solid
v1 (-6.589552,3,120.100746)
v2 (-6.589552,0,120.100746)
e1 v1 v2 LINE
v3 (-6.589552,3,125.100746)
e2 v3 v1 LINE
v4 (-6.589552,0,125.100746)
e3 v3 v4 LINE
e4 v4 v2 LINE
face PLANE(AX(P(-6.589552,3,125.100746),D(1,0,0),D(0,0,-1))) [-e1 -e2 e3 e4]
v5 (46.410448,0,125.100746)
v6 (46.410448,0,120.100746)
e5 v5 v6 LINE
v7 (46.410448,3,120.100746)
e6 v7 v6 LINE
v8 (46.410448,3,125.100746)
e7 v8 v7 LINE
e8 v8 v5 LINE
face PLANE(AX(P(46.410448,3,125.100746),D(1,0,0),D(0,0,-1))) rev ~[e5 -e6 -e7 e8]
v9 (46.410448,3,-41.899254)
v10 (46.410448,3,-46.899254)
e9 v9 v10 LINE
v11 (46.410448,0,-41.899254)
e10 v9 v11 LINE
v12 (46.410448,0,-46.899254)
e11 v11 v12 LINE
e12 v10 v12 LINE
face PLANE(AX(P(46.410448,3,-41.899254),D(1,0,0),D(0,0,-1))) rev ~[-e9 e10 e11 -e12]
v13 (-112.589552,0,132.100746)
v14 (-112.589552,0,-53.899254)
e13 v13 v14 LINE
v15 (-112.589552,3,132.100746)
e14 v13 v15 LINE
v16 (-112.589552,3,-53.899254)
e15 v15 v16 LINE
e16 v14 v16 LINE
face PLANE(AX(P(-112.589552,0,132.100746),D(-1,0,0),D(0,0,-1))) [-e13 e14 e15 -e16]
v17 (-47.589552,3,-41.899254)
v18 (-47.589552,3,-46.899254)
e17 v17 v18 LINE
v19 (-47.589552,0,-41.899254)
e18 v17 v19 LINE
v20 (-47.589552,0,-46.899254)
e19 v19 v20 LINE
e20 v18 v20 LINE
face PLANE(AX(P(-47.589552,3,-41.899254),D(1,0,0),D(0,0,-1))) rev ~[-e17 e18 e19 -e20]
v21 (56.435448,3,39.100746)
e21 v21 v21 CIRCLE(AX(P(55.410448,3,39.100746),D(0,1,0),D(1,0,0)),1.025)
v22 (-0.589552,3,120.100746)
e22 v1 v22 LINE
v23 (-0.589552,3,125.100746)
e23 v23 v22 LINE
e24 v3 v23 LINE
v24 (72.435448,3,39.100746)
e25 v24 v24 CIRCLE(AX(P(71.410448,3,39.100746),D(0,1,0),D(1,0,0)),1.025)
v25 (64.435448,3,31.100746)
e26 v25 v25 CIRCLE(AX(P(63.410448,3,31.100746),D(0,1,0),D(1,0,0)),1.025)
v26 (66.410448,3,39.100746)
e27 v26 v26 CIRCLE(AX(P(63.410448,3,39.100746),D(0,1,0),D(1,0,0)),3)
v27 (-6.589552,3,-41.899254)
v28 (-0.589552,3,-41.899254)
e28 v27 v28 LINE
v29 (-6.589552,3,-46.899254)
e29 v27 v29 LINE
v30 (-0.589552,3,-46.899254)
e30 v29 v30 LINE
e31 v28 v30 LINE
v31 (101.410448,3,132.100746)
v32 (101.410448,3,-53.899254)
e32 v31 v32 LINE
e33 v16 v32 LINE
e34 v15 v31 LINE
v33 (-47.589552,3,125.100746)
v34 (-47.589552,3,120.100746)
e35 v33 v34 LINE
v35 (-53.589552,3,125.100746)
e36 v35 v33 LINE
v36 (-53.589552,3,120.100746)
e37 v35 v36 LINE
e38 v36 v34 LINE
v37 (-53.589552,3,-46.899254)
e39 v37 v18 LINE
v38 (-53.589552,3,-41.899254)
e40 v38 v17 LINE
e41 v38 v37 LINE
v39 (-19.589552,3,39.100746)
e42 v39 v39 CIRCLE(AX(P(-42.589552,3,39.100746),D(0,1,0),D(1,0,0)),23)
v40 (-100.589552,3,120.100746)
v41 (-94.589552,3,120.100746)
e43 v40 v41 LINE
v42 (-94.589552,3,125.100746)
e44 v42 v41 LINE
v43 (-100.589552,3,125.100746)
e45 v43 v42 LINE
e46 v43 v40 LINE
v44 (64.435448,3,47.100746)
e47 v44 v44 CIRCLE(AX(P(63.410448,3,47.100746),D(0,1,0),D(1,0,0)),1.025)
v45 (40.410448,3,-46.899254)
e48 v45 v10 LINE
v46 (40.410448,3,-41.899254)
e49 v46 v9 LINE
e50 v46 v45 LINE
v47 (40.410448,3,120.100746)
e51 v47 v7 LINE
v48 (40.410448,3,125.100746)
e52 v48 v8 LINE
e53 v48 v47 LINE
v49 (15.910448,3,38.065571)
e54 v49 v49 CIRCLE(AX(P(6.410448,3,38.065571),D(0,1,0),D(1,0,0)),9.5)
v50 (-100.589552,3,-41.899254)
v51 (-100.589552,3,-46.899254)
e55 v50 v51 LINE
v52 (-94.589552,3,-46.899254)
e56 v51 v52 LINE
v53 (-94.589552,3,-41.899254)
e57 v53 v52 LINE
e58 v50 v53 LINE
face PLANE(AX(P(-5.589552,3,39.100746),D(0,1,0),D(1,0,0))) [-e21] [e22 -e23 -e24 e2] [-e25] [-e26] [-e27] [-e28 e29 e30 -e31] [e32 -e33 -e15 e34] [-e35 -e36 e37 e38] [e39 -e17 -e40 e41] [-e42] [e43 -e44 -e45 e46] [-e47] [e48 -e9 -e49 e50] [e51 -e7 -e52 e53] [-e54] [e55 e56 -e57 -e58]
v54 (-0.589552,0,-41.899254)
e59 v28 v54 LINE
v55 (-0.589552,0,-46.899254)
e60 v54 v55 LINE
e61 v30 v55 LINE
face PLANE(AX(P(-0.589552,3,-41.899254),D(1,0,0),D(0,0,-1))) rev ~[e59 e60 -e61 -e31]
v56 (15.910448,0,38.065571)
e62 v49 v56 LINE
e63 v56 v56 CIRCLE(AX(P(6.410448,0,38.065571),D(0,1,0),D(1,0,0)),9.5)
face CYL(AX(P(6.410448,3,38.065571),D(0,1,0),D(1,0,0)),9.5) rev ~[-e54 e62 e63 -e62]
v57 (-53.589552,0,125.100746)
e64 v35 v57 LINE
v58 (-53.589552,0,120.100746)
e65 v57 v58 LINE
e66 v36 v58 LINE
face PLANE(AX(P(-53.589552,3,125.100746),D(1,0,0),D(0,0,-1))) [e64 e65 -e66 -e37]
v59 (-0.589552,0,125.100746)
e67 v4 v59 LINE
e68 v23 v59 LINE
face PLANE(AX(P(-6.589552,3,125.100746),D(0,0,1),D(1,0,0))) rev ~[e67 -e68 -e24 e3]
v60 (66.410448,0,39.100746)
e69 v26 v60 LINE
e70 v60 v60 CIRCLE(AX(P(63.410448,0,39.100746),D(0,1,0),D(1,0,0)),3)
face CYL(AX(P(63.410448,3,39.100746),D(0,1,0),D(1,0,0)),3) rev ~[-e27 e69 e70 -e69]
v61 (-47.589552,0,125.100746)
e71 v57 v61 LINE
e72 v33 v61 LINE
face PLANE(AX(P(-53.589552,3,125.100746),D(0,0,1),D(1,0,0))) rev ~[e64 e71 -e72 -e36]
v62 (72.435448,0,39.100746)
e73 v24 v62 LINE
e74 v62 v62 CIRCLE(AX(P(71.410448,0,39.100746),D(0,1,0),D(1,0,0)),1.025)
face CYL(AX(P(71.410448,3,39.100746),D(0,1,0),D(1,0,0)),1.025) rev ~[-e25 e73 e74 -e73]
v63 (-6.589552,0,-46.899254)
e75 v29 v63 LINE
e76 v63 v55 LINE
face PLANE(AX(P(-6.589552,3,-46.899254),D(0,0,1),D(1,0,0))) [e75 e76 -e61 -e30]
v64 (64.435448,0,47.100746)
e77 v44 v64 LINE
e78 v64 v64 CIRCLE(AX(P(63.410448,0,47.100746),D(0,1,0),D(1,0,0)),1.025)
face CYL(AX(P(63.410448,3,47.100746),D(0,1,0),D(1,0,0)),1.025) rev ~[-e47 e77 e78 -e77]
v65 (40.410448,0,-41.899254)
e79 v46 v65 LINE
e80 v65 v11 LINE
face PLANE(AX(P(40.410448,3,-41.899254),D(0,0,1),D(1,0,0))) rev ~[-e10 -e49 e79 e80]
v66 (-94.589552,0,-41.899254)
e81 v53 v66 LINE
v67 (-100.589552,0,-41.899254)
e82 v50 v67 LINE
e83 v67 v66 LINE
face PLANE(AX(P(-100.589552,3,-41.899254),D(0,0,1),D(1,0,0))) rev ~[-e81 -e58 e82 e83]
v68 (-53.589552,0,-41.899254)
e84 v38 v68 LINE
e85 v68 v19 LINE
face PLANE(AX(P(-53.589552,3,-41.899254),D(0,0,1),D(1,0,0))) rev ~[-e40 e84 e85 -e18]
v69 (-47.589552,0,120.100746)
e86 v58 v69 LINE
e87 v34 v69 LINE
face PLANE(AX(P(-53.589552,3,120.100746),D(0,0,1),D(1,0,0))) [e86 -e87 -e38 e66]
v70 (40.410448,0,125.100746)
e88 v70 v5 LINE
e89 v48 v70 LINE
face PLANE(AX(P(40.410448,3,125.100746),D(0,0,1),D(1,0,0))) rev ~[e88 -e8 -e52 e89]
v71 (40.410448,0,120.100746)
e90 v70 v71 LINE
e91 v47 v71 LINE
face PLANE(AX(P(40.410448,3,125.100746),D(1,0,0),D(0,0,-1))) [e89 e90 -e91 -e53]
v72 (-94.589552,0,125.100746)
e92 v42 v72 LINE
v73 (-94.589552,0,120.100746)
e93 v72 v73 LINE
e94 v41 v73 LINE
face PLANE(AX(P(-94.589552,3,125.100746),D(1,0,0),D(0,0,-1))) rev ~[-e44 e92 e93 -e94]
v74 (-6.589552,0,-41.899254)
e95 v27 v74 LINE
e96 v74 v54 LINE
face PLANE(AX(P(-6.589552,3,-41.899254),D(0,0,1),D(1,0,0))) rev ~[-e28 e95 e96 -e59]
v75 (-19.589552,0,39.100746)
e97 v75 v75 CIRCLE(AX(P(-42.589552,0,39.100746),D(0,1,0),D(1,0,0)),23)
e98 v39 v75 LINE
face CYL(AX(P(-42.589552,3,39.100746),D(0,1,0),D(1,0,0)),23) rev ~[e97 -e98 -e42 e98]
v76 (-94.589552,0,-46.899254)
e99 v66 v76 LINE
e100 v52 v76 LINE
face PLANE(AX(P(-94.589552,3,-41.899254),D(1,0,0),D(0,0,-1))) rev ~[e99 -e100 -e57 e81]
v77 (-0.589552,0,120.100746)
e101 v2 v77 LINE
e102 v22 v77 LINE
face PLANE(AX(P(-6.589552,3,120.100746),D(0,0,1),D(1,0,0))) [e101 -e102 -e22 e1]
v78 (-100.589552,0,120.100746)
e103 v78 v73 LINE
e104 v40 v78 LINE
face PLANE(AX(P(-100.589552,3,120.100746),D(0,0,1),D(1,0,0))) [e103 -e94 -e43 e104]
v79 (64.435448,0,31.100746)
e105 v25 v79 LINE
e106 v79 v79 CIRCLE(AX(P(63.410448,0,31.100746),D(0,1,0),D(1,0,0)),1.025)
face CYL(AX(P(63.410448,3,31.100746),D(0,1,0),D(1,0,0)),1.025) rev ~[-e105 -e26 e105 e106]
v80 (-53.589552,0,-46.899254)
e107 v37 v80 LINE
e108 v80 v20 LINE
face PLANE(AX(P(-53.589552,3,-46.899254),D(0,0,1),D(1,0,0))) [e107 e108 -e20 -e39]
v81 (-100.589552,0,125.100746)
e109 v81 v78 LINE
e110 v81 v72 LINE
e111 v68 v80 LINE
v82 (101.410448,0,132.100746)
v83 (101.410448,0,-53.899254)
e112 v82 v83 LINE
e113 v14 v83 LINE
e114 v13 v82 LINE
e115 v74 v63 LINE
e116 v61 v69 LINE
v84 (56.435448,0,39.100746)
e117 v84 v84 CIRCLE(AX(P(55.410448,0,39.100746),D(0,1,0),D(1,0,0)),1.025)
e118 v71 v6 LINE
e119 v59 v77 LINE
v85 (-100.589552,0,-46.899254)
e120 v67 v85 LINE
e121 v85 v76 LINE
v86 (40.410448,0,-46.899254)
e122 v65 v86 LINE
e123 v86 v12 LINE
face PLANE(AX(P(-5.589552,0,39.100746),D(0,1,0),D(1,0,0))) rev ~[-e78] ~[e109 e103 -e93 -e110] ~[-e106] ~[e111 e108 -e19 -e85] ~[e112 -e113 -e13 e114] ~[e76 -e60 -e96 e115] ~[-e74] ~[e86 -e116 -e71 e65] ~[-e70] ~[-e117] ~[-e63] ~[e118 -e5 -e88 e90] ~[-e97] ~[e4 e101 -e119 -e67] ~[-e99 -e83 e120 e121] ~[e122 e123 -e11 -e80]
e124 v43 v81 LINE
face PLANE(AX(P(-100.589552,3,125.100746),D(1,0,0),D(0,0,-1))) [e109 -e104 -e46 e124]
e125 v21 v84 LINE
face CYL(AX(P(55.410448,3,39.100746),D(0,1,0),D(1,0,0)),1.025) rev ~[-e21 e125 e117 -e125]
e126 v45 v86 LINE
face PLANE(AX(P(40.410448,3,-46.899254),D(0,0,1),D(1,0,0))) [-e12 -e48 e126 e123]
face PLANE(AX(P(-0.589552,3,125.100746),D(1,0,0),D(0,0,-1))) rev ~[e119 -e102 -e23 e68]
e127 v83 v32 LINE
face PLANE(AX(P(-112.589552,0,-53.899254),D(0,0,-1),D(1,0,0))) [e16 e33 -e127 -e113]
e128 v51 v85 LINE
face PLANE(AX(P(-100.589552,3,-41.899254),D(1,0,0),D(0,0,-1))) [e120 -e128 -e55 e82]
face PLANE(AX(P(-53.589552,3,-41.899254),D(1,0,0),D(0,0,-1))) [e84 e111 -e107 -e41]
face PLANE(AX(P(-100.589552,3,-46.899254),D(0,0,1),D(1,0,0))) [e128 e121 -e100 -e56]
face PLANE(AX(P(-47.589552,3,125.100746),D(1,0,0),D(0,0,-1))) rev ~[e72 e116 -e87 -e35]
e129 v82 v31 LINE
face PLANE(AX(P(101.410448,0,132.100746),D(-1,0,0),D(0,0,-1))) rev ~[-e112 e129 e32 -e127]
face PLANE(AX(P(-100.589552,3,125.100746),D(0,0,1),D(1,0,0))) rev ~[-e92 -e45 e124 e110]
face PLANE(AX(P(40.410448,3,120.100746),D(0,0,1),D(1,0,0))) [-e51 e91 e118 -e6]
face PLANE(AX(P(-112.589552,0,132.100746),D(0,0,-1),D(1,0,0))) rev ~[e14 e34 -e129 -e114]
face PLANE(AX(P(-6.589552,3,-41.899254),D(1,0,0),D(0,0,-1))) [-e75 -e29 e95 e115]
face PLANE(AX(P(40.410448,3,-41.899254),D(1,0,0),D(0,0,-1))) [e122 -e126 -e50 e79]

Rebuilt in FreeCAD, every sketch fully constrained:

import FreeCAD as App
import Part
import Sketcher

V = App.Vector

doc = App.newDocument("Part")
body = doc.addObject("PartDesign::Body", "Body")

# Sketch on XZ plane
sketch1 = body.newObject("Sketcher::SketchObject", "Sketch")
sketch1.AttachmentSupport = (doc.getObject("XZ_Plane"), [""])
sketch1.MapMode = "FlatFace"
sketch1.addGeometry([
    Part.LineSegment(V(-113, -54, 0), V(-113, 132, 0)),
    Part.LineSegment(V(-113, 132, 0), V(101, 132, 0)),
    Part.LineSegment(V(101, 132, 0), V(101, -54, 0)),
    Part.LineSegment(V(101, -54, 0), V(-113, -54, 0)),
], False)
sketch1.addConstraint([
    Sketcher.Constraint("Coincident", 0, 2, 1, 1),
    Sketcher.Constraint("Coincident", 1, 2, 2, 1),
    Sketcher.Constraint("Coincident", 2, 2, 3, 1),
    Sketcher.Constraint("Coincident", 3, 2, 0, 1),
    Sketcher.Constraint("Vertical", 0),
    Sketcher.Constraint("Horizontal", 1),
    Sketcher.Constraint("Vertical", 2),
    Sketcher.Constraint("Horizontal", 3),
    Sketcher.Constraint("DistanceX", 1, 1, 1, 2, 214.0),
    Sketcher.Constraint("DistanceY", 0, 1, 0, 2, 186.0),
    Sketcher.Constraint("DistanceX", 0, 2, -1, 1, 112.589552),
    Sketcher.Constraint("DistanceY", -1, 1, 0, 2, 132.100746),
])
pad1 = body.newObject("PartDesign::Pad", "Pad")
pad1.Profile = sketch1
pad1.Length = 3
pad1.Reversed = True

# Sketch on XZ plane
sketch2 = body.newObject("Sketcher::SketchObject", "Sketch001")
sketch2.AttachmentSupport = (doc.getObject("XZ_Plane"), [""])
sketch2.MapMode = "FlatFace"
sketch2.AttachmentOffset = App.Placement(V(0, 0, -3), App.Rotation())
sketch2.addGeometry(Part.Circle(V(-43, 39, 0), V(0, 0, 1), 23), False)
sketch2.addConstraint([
    Sketcher.Constraint("Diameter", 0, 46.0),
    Sketcher.Constraint("DistanceX", 0, 3, -1, 1, 42.589552),
    Sketcher.Constraint("DistanceY", -1, 1, 0, 3, 39.100746),
])
pocket1 = body.newObject("PartDesign::Pocket", "Pocket")
pocket1.Profile = sketch2
pocket1.Type = "ThroughAll"
pocket1.Reversed = True

# Sketch on XZ plane
sketch3 = body.newObject("Sketcher::SketchObject", "Sketch002")
sketch3.AttachmentSupport = (doc.getObject("XZ_Plane"), [""])
sketch3.MapMode = "FlatFace"
sketch3.AttachmentOffset = App.Placement(V(0, 0, -3), App.Rotation())
sketch3.addGeometry([
    Part.Circle(V(63.4, 39.1, 0), V(0, 0, 1), 3),  # 0
    Part.Circle(V(63.4, 31.1, 0), V(0, 0, 1), 1),  # 1
    Part.Circle(V(71.4, 39.1, 0), V(0, 0, 1), 1),  # 2
    Part.Circle(V(63.4, 47.1, 0), V(0, 0, 1), 1),  # 3
    Part.Circle(V(55.4, 39.1, 0), V(0, 0, 1), 1),  # 4
], False)
sketch3.addConstraint([
    Sketcher.Constraint("Equal", 1, 2),
    Sketcher.Constraint("Equal", 2, 3),
    Sketcher.Constraint("Equal", 3, 4),
    Sketcher.Constraint("Horizontal", 0, 3, 2, 3),
    Sketcher.Constraint("Horizontal", 2, 3, 4, 3),
    Sketcher.Constraint("Vertical", 0, 3, 1, 3),
    Sketcher.Constraint("Vertical", 1, 3, 3, 3),
    Sketcher.Constraint("Diameter", 0, 6.0),
    Sketcher.Constraint("Diameter", 1, 2.05),
    Sketcher.Constraint("DistanceY", 1, 3, 0, 3, 8.0),
    Sketcher.Constraint("DistanceX", 0, 3, 2, 3, 8.0),
    Sketcher.Constraint("DistanceY", 0, 3, 3, 3, 8.0),
    Sketcher.Constraint("DistanceX", 4, 3, 0, 3, 8.0),
    Sketcher.Constraint("DistanceX", -1, 1, 0, 3, 63.410448),
    Sketcher.Constraint("DistanceY", -1, 1, 0, 3, 39.100746),
])
pocket2 = body.newObject("PartDesign::Pocket", "Pocket001")
pocket2.Profile = sketch3
pocket2.Type = "ThroughAll"
pocket2.Reversed = True

# Sketch on XZ plane
sketch4 = body.newObject("Sketcher::SketchObject", "Sketch003")
sketch4.AttachmentSupport = (doc.getObject("XZ_Plane"), [""])
sketch4.MapMode = "FlatFace"
sketch4.AttachmentOffset = App.Placement(V(0, 0, -3), App.Rotation())
sketch4.addGeometry([
    Part.LineSegment(V(-101, 120, 0), V(-101, 125, 0)),  # 0
    Part.LineSegment(V(-101, 125, 0), V(-95, 125, 0)),  # 1
    Part.LineSegment(V(-95, 125, 0), V(-95, 120, 0)),  # 2
    Part.LineSegment(V(-95, 120, 0), V(-101, 120, 0)),  # 3
    Part.LineSegment(V(-54, 120, 0), V(-54, 125, 0)),  # 4
    Part.LineSegment(V(-54, 125, 0), V(-48, 125, 0)),  # 5
    Part.LineSegment(V(-48, 125, 0), V(-48, 120, 0)),  # 6
    Part.LineSegment(V(-48, 120, 0), V(-54, 120, 0)),  # 7
    Part.LineSegment(V(-7, 120, 0), V(-7, 125, 0)),  # 8
    Part.LineSegment(V(-7, 125, 0), V(-1, 125, 0)),  # 9
    Part.LineSegment(V(-1, 125, 0), V(-1, 120, 0)),  # 10
    Part.LineSegment(V(-1, 120, 0), V(-7, 120, 0)),  # 11
    Part.LineSegment(V(-101, -47, 0), V(-101, -42, 0)),  # 12
    Part.LineSegment(V(-101, -42, 0), V(-95, -42, 0)),  # 13
    Part.LineSegment(V(-95, -42, 0), V(-95, -47, 0)),  # 14
    Part.LineSegment(V(-95, -47, 0), V(-101, -47, 0)),  # 15
    Part.LineSegment(V(-54, -47, 0), V(-54, -42, 0)),  # 16
    Part.LineSegment(V(-54, -42, 0), V(-48, -42, 0)),  # 17
    Part.LineSegment(V(-48, -42, 0), V(-48, -47, 0)),  # 18
    Part.LineSegment(V(-48, -47, 0), V(-54, -47, 0)),  # 19
    Part.LineSegment(V(-7, -47, 0), V(-7, -42, 0)),  # 20
    Part.LineSegment(V(-7, -42, 0), V(-1, -42, 0)),  # 21
    Part.LineSegment(V(-1, -42, 0), V(-1, -47, 0)),  # 22
    Part.LineSegment(V(-1, -47, 0), V(-7, -47, 0)),  # 23
    Part.LineSegment(V(40, 120, 0), V(40, 125, 0)),  # 24
    Part.LineSegment(V(40, 125, 0), V(46, 125, 0)),  # 25
    Part.LineSegment(V(46, 125, 0), V(46, 120, 0)),  # 26
    Part.LineSegment(V(46, 120, 0), V(40, 120, 0)),  # 27
    Part.LineSegment(V(40, -47, 0), V(40, -42, 0)),  # 28
    Part.LineSegment(V(40, -42, 0), V(46, -42, 0)),  # 29
    Part.LineSegment(V(46, -42, 0), V(46, -47, 0)),  # 30
    Part.LineSegment(V(46, -47, 0), V(40, -47, 0)),  # 31
], False)
sketch4.addConstraint([
    Sketcher.Constraint("Coincident", 0, 2, 1, 1),
    Sketcher.Constraint("Coincident", 1, 2, 2, 1),
    Sketcher.Constraint("Coincident", 2, 2, 3, 1),
    Sketcher.Constraint("Coincident", 3, 2, 0, 1),
    Sketcher.Constraint("Coincident", 4, 2, 5, 1),
    Sketcher.Constraint("Coincident", 5, 2, 6, 1),
    Sketcher.Constraint("Coincident", 6, 2, 7, 1),
    Sketcher.Constraint("Coincident", 7, 2, 4, 1),
    Sketcher.Constraint("Coincident", 8, 2, 9, 1),
    Sketcher.Constraint("Coincident", 9, 2, 10, 1),
    Sketcher.Constraint("Coincident", 10, 2, 11, 1),
    Sketcher.Constraint("Coincident", 11, 2, 8, 1),
    Sketcher.Constraint("Coincident", 12, 2, 13, 1),
    Sketcher.Constraint("Coincident", 13, 2, 14, 1),
    Sketcher.Constraint("Coincident", 14, 2, 15, 1),
    Sketcher.Constraint("Coincident", 15, 2, 12, 1),
    Sketcher.Constraint("Coincident", 16, 2, 17, 1),
    Sketcher.Constraint("Coincident", 17, 2, 18, 1),
    Sketcher.Constraint("Coincident", 18, 2, 19, 1),
    Sketcher.Constraint("Coincident", 19, 2, 16, 1),
    Sketcher.Constraint("Coincident", 20, 2, 21, 1),
    Sketcher.Constraint("Coincident", 21, 2, 22, 1),
    Sketcher.Constraint("Coincident", 22, 2, 23, 1),
    Sketcher.Constraint("Coincident", 23, 2, 20, 1),
    Sketcher.Constraint("Coincident", 24, 2, 25, 1),
    Sketcher.Constraint("Coincident", 25, 2, 26, 1),
    Sketcher.Constraint("Coincident", 26, 2, 27, 1),
    Sketcher.Constraint("Coincident", 27, 2, 24, 1),
    Sketcher.Constraint("Coincident", 28, 2, 29, 1),
    Sketcher.Constraint("Coincident", 29, 2, 30, 1),
    Sketcher.Constraint("Coincident", 30, 2, 31, 1),
    Sketcher.Constraint("Coincident", 31, 2, 28, 1),
    Sketcher.Constraint("Vertical", 0),
    Sketcher.Constraint("Horizontal", 1),
    Sketcher.Constraint("Vertical", 2),
    Sketcher.Constraint("Horizontal", 3),
    Sketcher.Constraint("Vertical", 4),
    Sketcher.Constraint("Horizontal", 5),
    Sketcher.Constraint("Vertical", 6),
    Sketcher.Constraint("Horizontal", 7),
    Sketcher.Constraint("Vertical", 8),
    Sketcher.Constraint("Horizontal", 9),
    Sketcher.Constraint("Vertical", 10),
    Sketcher.Constraint("Horizontal", 11),
    Sketcher.Constraint("Vertical", 12),
    Sketcher.Constraint("Horizontal", 13),
    Sketcher.Constraint("Vertical", 14),
    Sketcher.Constraint("Horizontal", 15),
    Sketcher.Constraint("Vertical", 16),
    Sketcher.Constraint("Horizontal", 17),
    Sketcher.Constraint("Vertical", 18),
    Sketcher.Constraint("Horizontal", 19),
    Sketcher.Constraint("Vertical", 20),
    Sketcher.Constraint("Horizontal", 21),
    Sketcher.Constraint("Vertical", 22),
    Sketcher.Constraint("Horizontal", 23),
    Sketcher.Constraint("Vertical", 24),
    Sketcher.Constraint("Horizontal", 25),
    Sketcher.Constraint("Vertical", 26),
    Sketcher.Constraint("Horizontal", 27),
    Sketcher.Constraint("Vertical", 28),
    Sketcher.Constraint("Horizontal", 29),
    Sketcher.Constraint("Vertical", 30),
    Sketcher.Constraint("Horizontal", 31),
    Sketcher.Constraint("Horizontal", 1, 2, 4, 2),
    Sketcher.Constraint("Horizontal", 3, 2, 6, 2),
    Sketcher.Constraint("Horizontal", 5, 2, 8, 2),
    Sketcher.Constraint("Horizontal", 7, 2, 10, 2),
    Sketcher.Constraint("Horizontal", 13, 2, 16, 2),
    Sketcher.Constraint("Horizontal", 15, 2, 18, 2),
    Sketcher.Constraint("Horizontal", 17, 2, 20, 2),
    Sketcher.Constraint("Horizontal", 19, 2, 22, 2),
    Sketcher.Constraint("Horizontal", 9, 2, 24, 2),
    Sketcher.Constraint("Horizontal", 11, 2, 26, 2),
    Sketcher.Constraint("Horizontal", 21, 2, 28, 2),
    Sketcher.Constraint("Horizontal", 23, 2, 30, 2),
    Sketcher.Constraint("Vertical", 3, 2, 12, 2),
    Sketcher.Constraint("Vertical", 2, 2, 13, 2),
    Sketcher.Constraint("Vertical", 7, 2, 16, 2),
    Sketcher.Constraint("Vertical", 6, 2, 17, 2),
    Sketcher.Constraint("Vertical", 11, 2, 20, 2),
    Sketcher.Constraint("Vertical", 10, 2, 21, 2),
    Sketcher.Constraint("Vertical", 27, 2, 28, 2),
    Sketcher.Constraint("Vertical", 26, 2, 29, 2),
    Sketcher.Constraint("Equal", 3, 5),
    Sketcher.Constraint("Equal", 7, 9),
    Sketcher.Constraint("Equal", 23, 25),
    Sketcher.Constraint("Equal", 10, 12),
    Sketcher.Constraint("DistanceX", 1, 1, 1, 2, 6.0),
    Sketcher.Constraint("DistanceY", 0, 1, 0, 2, 5.0),
    Sketcher.Constraint("DistanceX", 1, 2, 4, 2, 41.0),
    Sketcher.Constraint("DistanceX", 5, 2, 8, 2, 41.0),
    Sketcher.Constraint("DistanceY", 12, 2, 3, 2, 162.0),
    Sketcher.Constraint("DistanceX", 9, 2, 24, 2, 41.0),
    Sketcher.Constraint("DistanceX", 0, 2, -1, 1, 100.589552),
    Sketcher.Constraint("DistanceY", -1, 1, 0, 2, 125.100746),
])
pocket3 = body.newObject("PartDesign::Pocket", "Pocket002")
pocket3.Profile = sketch4
pocket3.Type = "ThroughAll"
pocket3.Reversed = True

# Sketch on XZ plane
sketch5 = body.newObject("Sketcher::SketchObject", "Sketch004")
sketch5.AttachmentSupport = (doc.getObject("XZ_Plane"), [""])
sketch5.MapMode = "FlatFace"
sketch5.AttachmentOffset = App.Placement(V(0, 0, -3), App.Rotation())
sketch5.addGeometry(Part.Circle(V(6, 38, 0), V(0, 0, 1), 10), False)
sketch5.addConstraint([
    Sketcher.Constraint("Diameter", 0, 19.0),
    Sketcher.Constraint("DistanceY", -1, 1, 0, 3, 38.065571),
    Sketcher.Constraint("DistanceX", -1, 1, 0, 3, 6.410448),
])
pocket4 = body.newObject("PartDesign::Pocket", "Pocket003")
pocket4.Profile = sketch5
pocket4.Type = "ThroughAll"
pocket4.Reversed = True

doc.recompute()
